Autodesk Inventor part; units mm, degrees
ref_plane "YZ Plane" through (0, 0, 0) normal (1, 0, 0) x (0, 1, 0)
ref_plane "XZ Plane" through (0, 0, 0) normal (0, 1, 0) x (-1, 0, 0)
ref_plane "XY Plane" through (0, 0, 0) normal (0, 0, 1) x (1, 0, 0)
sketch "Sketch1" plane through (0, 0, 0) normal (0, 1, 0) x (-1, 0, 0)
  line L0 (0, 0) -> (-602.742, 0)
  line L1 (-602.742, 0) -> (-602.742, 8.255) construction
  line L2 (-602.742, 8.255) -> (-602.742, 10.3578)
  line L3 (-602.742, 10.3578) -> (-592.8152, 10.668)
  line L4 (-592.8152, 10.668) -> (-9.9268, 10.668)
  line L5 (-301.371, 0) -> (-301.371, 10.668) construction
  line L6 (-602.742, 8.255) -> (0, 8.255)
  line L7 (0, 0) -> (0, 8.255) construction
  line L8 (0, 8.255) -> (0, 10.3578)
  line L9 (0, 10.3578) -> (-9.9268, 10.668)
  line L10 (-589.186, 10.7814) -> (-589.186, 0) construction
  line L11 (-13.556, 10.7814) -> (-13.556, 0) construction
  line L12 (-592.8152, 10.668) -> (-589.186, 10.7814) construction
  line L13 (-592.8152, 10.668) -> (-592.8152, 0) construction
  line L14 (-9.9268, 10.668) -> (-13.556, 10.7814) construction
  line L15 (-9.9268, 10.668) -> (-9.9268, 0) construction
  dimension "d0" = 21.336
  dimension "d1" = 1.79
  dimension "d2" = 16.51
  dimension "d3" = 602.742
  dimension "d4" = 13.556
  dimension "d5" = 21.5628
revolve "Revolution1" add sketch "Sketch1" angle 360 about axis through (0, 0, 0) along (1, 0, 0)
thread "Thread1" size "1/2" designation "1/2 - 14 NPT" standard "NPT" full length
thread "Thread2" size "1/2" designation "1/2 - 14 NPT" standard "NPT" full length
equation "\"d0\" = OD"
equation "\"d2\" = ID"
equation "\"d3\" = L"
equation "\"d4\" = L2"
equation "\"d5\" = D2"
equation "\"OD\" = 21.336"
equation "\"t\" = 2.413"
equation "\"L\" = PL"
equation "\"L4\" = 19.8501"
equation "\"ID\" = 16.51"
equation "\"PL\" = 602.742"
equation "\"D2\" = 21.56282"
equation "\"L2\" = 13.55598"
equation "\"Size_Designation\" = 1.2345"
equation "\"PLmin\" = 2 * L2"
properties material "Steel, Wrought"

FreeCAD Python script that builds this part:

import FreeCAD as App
import Part
import Sketcher
from FreeCAD import Vector
Q = App.Units.Quantity


def add_polygon(sketch, points):
    """Adds a closed chain of lines whose ends are joined by coincident constraints."""
    first, n = sketch.GeometryCount, len(points)
    for a, b in zip(points, points[1:] + points[:1]):
        sketch.addGeometry(Part.LineSegment(App.Vector(*a, 0), App.Vector(*b, 0)), False)
    for i in range(n):
        sketch.addConstraint(Sketcher.Constraint("Coincident", first + i, 2, first + (i + 1) % n, 1))

doc = App.newDocument("Part")
body = doc.addObject("PartDesign::Body", "Body")

# Sketch on XZ plane
sketch1 = body.newObject("Sketcher::SketchObject", "Sketch")
sketch1.AttachmentSupport = (doc.getObject("XZ_Plane"), [""])
sketch1.MapMode = "FlatFace"
add_polygon(sketch1, [(602.742, 10.3578), (602.742, 8.255), (0, 8.255), (0, 10.3578), (9.9268, 10.668), (592.8152, 10.668)])  # lines 0-5
sketch1.addConstraint([
    Sketcher.Constraint("Vertical", 0),
    Sketcher.Constraint("Horizontal", 1),
    Sketcher.Constraint("Vertical", 2),
    Sketcher.Constraint("Horizontal", 4),
    Sketcher.Constraint("PointOnObject", 1, 2, -2),
    Sketcher.Constraint("Horizontal", 2, 2, 5, 2),
    Sketcher.Constraint("Equal", 3, 5),
    Sketcher.Constraint("DistanceX", 1, 2, 1, 1, Q("23.73 in")),
    Sketcher.Constraint("Angle", 3, Q("1.7898 deg")),
    Sketcher.Constraint("DistanceY", -1, 1, 3, 2, Q("0.42 in")),
    Sketcher.Constraint("Distance", 3, Q("0.391 in")),
    Sketcher.Constraint("DistanceY", -1, 1, 0, 2, Q("0.325 in")),
])
revolution = body.newObject("PartDesign::Revolution", "Revolution")
revolution.Profile = sketch1
revolution.ReferenceAxis = (sketch1, ["H_Axis"])
revolution.Angle = 360

doc.recompute()
